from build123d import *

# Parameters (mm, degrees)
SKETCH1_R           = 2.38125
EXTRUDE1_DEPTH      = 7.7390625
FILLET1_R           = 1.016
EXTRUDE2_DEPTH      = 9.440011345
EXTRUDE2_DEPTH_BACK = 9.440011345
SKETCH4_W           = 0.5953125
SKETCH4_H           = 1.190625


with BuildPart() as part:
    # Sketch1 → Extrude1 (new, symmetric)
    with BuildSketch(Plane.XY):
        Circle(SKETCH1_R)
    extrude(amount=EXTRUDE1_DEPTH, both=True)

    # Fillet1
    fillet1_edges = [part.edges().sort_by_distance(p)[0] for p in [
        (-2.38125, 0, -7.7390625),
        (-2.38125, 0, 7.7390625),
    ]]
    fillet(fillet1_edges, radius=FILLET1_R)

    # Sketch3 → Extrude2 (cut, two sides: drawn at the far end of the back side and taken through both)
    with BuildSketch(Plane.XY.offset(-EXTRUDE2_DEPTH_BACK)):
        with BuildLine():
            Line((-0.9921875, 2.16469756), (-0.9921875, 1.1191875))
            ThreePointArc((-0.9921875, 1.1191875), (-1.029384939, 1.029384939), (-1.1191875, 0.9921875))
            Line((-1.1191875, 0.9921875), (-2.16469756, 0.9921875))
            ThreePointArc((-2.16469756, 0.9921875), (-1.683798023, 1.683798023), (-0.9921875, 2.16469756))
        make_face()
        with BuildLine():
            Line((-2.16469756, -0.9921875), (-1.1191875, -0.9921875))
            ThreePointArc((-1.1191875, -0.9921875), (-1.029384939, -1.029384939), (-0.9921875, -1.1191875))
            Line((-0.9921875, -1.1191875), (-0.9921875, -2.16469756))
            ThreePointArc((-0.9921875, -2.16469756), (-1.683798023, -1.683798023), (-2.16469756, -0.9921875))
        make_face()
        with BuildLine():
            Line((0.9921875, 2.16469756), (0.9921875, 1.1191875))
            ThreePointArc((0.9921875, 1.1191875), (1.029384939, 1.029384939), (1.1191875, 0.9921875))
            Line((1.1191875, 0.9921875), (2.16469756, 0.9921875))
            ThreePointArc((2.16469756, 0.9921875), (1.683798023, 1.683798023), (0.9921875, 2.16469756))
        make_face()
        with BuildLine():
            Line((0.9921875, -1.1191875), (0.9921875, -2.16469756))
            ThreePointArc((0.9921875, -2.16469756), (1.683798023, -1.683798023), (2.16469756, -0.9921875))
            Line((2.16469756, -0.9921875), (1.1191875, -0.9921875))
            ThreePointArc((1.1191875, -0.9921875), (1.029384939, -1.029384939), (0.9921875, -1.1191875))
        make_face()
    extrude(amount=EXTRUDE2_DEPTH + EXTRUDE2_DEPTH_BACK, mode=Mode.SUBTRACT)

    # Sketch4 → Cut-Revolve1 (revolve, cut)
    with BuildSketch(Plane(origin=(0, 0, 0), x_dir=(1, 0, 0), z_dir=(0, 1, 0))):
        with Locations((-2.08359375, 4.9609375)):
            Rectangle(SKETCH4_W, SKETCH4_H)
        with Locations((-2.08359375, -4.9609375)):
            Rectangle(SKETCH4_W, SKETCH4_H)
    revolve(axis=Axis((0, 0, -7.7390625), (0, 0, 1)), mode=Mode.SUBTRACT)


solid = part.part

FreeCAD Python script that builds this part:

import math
import FreeCAD as App
import Part
import Sketcher

V = App.Vector
Q = App.Units.Quantity


def edges_at(feature, points):
    """Names of the edges that pass closest to the given points."""
    edges = feature.Shape.Edges
    near = lambda p: min(range(len(edges)), key=lambda i: edges[i].distToShape(Part.Vertex(*p))[0])
    return sorted({f"Edge{near(p) + 1}" for p in points})


def add_polygon(sketch, points):
    """Adds a closed chain of lines whose ends are joined by coincident constraints."""
    first, n = sketch.GeometryCount, len(points)
    for a, b in zip(points, points[1:] + points[:1]):
        sketch.addGeometry(Part.LineSegment(App.Vector(*a, 0), App.Vector(*b, 0)), False)
    for i in range(n):
        sketch.addConstraint(Sketcher.Constraint("Coincident", first + i, 2, first + (i + 1) % n, 1))

doc = App.newDocument("Part")
body = doc.addObject("PartDesign::Body", "Body")

# Sketch on XY plane
sketch1 = body.newObject("Sketcher::SketchObject", "Sketch")
sketch1.AttachmentSupport = (doc.getObject("XY_Plane"), [""])
sketch1.MapMode = "FlatFace"
sketch1.addGeometry(Part.Circle(V(0, 0, 0), V(0, 0, 1), 2.4), False)
sketch1.addConstraint(Sketcher.Constraint("Coincident", 0, 3, -1, 1))
sketch1.addConstraint(Sketcher.Constraint("Diameter", 0, Q("0.1875 in")))
pad1 = body.newObject("PartDesign::Pad", "Pad")
pad1.Profile = sketch1
pad1.Length = Q("0.609375 in")
pad1.Midplane = True
doc.recompute()

fillet = body.newObject("PartDesign::Fillet", "Fillet")
fillet.Base = (pad1, edges_at(pad1, [(-2.381, 0, -7.739), (-2.381, 0, 7.739)]))
fillet.Radius = Q("0.04 in")

# Sketch on XY plane
sketch2 = body.newObject("Sketcher::SketchObject", "Sketch001")
sketch2.AttachmentSupport = (doc.getObject("XY_Plane"), [""])
sketch2.MapMode = "FlatFace"
sketch2.addGeometry(Part.LineSegment(V(-0.99, 1.12, 0), V(-0.99, 2.16, 0)), False)
sketch2.addGeometry(Part.ArcOfCircle(Part.Circle(V(0, 0, 0), V(0, 0, 1), 2.38), math.radians(115), math.radians(155)), False)
sketch2.addGeometry(Part.LineSegment(V(-2.16, 0.99, 0), V(-1.12, 0.99, 0)), False)
sketch2.addGeometry(Part.ArcOfCircle(Part.Circle(V(-1.12, 1.12, 0), V(0, 0, 1), 0.13), math.radians(-90), math.radians(0)), False)
sketch2.addGeometry(Part.LineSegment(V(-1.12, -0.99, 0), V(-2.16, -0.99, 0)), False)
sketch2.addGeometry(Part.ArcOfCircle(Part.Circle(V(0, 0, 0), V(0, 0, 1), 2.38), math.radians(-155), math.radians(-115)), False)
sketch2.addGeometry(Part.LineSegment(V(-0.99, -2.16, 0), V(-0.99, -1.12, 0)), False)
sketch2.addGeometry(Part.ArcOfCircle(Part.Circle(V(-1.12, -1.12, 0), V(0, 0, 1), 0.13), math.radians(0), math.radians(90)), False)
sketch2.addGeometry(Part.LineSegment(V(0.99, 2.16, 0), V(0.99, 1.12, 0)), False)
sketch2.addGeometry(Part.ArcOfCircle(Part.Circle(V(1.12, 1.12, 0), V(0, 0, 1), 0.13), math.radians(-180), math.radians(-90)), False)
sketch2.addGeometry(Part.LineSegment(V(1.12, 0.99, 0), V(2.16, 0.99, 0)), False)
sketch2.addGeometry(Part.ArcOfCircle(Part.Circle(V(0, 0, 0), V(0, 0, 1), 2.38), math.radians(25), math.radians(65)), False)
sketch2.addGeometry(Part.LineSegment(V(0.99, -1.12, 0), V(0.99, -2.16, 0)), False)
sketch2.addGeometry(Part.ArcOfCircle(Part.Circle(V(0, 0, 0), V(0, 0, 1), 2.38), math.radians(-65), math.radians(-25)), False)
sketch2.addGeometry(Part.LineSegment(V(2.16, -0.99, 0), V(1.12, -0.99, 0)), False)
sketch2.addGeometry(Part.ArcOfCircle(Part.Circle(V(1.12, -1.12, 0), V(0, 0, 1), 0.13), math.radians(90), math.radians(180)), False)
sketch2.addConstraint(Sketcher.Constraint("Coincident", 0, 2, 1, 1))
sketch2.addConstraint(Sketcher.Constraint("Coincident", 1, 2, 2, 1))
sketch2.addConstraint(Sketcher.Constraint("Tangent", 2, 2, 3, 1))
sketch2.addConstraint(Sketcher.Constraint("Tangent", 3, 2, 0, 1))
sketch2.addConstraint(Sketcher.Constraint("Coincident", 4, 2, 5, 1))
sketch2.addConstraint(Sketcher.Constraint("Coincident", 5, 2, 6, 1))
sketch2.addConstraint(Sketcher.Constraint("Tangent", 6, 2, 7, 1))
sketch2.addConstraint(Sketcher.Constraint("Tangent", 7, 2, 4, 1))
sketch2.addConstraint(Sketcher.Constraint("Tangent", 8, 2, 9, 1))
sketch2.addConstraint(Sketcher.Constraint("Tangent", 9, 2, 10, 1))
sketch2.addConstraint(Sketcher.Constraint("Coincident", 10, 2, 11, 1))
sketch2.addConstraint(Sketcher.Constraint("Coincident", 11, 2, 8, 1))
sketch2.addConstraint(Sketcher.Constraint("Coincident", 12, 2, 13, 1))
sketch2.addConstraint(Sketcher.Constraint("Coincident", 13, 2, 14, 1))
sketch2.addConstraint(Sketcher.Constraint("Tangent", 14, 2, 15, 1))
sketch2.addConstraint(Sketcher.Constraint("Tangent", 15, 2, 12, 1))
sketch2.addConstraint(Sketcher.Constraint("Vertical", 0))
sketch2.addConstraint(Sketcher.Constraint("Horizontal", 2))
sketch2.addConstraint(Sketcher.Constraint("Horizontal", 4))
sketch2.addConstraint(Sketcher.Constraint("Vertical", 6))
sketch2.addConstraint(Sketcher.Constraint("Vertical", 8))
sketch2.addConstraint(Sketcher.Constraint("Horizontal", 10))
sketch2.addConstraint(Sketcher.Constraint("Vertical", 12))
sketch2.addConstraint(Sketcher.Constraint("Horizontal", 14))
sketch2.addConstraint(Sketcher.Constraint("Coincident", 1, 3, -1, 1))
sketch2.addConstraint(Sketcher.Constraint("Coincident", 5, 3, -1, 1))
sketch2.addConstraint(Sketcher.Constraint("Coincident", 11, 3, -1, 1))
sketch2.addConstraint(Sketcher.Constraint("Coincident", 13, 3, -1, 1))
sketch2.addConstraint(Sketcher.Constraint("Equal", 1, 5))
sketch2.addConstraint(Sketcher.Constraint("Equal", 3, 7))
sketch2.addConstraint(Sketcher.Constraint("Equal", 7, 9))
sketch2.addConstraint(Sketcher.Constraint("Equal", 5, 11))
sketch2.addConstraint(Sketcher.Constraint("Equal", 11, 13))
sketch2.addConstraint(Sketcher.Constraint("Equal", 9, 15))
sketch2.addConstraint(Sketcher.Constraint("Symmetric", 7, 3, 9, 3, -1, 1))
sketch2.addConstraint(Sketcher.Constraint("Symmetric", 3, 3, 15, 3, -1, 1))
sketch2.addConstraint(Sketcher.Constraint("Symmetric", 3, 3, 9, 3, -2))
sketch2.addConstraint(Sketcher.Constraint("Equal", 14, 0))
sketch2.addConstraint(Sketcher.Constraint("Radius", 1, Q("0.09375 in")))
sketch2.addConstraint(Sketcher.Constraint("Radius", 3, Q("0.005 in")))
sketch2.addConstraint(Sketcher.Constraint("DistanceY", 4, 2, 1, 2, Q("0.078125 in")))
pocket1 = body.newObject("PartDesign::Pocket", "Pocket")
pocket1.Profile = sketch2
pocket1.Type = "ThroughAll"
pocket1.Midplane = True

# Sketch on XZ plane
sketch3 = body.newObject("Sketcher::SketchObject", "Sketch002")
sketch3.AttachmentSupport = (doc.getObject("XZ_Plane"), [""])
sketch3.MapMode = "FlatFace"
add_polygon(sketch3, [(-2.4, -5.6), (-2.4, -4.4), (-1.8, -4.4), (-1.8, -5.6)])  # lines 0-3
add_polygon(sketch3, [(-2.4, 4.4), (-2.4, 5.6), (-1.8, 5.6), (-1.8, 4.4)])  # lines 4-7
sketch3.addConstraint(Sketcher.Constraint("Vertical", 0))
sketch3.addConstraint(Sketcher.Constraint("Horizontal", 1))
sketch3.addConstraint(Sketcher.Constraint("Vertical", 2))
sketch3.addConstraint(Sketcher.Constraint("Horizontal", 3))
sketch3.addConstraint(Sketcher.Constraint("Vertical", 4))
sketch3.addConstraint(Sketcher.Constraint("Horizontal", 5))
sketch3.addConstraint(Sketcher.Constraint("Vertical", 6))
sketch3.addConstraint(Sketcher.Constraint("Horizontal", 7))
sketch3.addConstraint(Sketcher.Constraint("Symmetric", 3, 2, 4, 2, -1))
sketch3.addConstraint(Sketcher.Constraint("Symmetric", 1, 2, 6, 2, -1))
sketch3.addConstraint(Sketcher.Constraint("DistanceY", 0, 1, 0, 2, Q("0.046875 in")))
sketch3.addConstraint(Sketcher.Constraint("DistanceX", 0, 2, -1, 1, Q("0.09375 in")))
sketch3.addConstraint(Sketcher.Constraint("DistanceY", 0, 2, -1, 1, Q("0.171875 in")))
sketch3.addConstraint(Sketcher.Constraint("DistanceX", 1, 1, 1, 2, Q("0.595313 mm")))
groove = body.newObject("PartDesign::Groove", "Groove")
groove.Profile = sketch3
groove.ReferenceAxis = (sketch3, ["V_Axis"])
groove.Angle = 360

doc.recompute()
